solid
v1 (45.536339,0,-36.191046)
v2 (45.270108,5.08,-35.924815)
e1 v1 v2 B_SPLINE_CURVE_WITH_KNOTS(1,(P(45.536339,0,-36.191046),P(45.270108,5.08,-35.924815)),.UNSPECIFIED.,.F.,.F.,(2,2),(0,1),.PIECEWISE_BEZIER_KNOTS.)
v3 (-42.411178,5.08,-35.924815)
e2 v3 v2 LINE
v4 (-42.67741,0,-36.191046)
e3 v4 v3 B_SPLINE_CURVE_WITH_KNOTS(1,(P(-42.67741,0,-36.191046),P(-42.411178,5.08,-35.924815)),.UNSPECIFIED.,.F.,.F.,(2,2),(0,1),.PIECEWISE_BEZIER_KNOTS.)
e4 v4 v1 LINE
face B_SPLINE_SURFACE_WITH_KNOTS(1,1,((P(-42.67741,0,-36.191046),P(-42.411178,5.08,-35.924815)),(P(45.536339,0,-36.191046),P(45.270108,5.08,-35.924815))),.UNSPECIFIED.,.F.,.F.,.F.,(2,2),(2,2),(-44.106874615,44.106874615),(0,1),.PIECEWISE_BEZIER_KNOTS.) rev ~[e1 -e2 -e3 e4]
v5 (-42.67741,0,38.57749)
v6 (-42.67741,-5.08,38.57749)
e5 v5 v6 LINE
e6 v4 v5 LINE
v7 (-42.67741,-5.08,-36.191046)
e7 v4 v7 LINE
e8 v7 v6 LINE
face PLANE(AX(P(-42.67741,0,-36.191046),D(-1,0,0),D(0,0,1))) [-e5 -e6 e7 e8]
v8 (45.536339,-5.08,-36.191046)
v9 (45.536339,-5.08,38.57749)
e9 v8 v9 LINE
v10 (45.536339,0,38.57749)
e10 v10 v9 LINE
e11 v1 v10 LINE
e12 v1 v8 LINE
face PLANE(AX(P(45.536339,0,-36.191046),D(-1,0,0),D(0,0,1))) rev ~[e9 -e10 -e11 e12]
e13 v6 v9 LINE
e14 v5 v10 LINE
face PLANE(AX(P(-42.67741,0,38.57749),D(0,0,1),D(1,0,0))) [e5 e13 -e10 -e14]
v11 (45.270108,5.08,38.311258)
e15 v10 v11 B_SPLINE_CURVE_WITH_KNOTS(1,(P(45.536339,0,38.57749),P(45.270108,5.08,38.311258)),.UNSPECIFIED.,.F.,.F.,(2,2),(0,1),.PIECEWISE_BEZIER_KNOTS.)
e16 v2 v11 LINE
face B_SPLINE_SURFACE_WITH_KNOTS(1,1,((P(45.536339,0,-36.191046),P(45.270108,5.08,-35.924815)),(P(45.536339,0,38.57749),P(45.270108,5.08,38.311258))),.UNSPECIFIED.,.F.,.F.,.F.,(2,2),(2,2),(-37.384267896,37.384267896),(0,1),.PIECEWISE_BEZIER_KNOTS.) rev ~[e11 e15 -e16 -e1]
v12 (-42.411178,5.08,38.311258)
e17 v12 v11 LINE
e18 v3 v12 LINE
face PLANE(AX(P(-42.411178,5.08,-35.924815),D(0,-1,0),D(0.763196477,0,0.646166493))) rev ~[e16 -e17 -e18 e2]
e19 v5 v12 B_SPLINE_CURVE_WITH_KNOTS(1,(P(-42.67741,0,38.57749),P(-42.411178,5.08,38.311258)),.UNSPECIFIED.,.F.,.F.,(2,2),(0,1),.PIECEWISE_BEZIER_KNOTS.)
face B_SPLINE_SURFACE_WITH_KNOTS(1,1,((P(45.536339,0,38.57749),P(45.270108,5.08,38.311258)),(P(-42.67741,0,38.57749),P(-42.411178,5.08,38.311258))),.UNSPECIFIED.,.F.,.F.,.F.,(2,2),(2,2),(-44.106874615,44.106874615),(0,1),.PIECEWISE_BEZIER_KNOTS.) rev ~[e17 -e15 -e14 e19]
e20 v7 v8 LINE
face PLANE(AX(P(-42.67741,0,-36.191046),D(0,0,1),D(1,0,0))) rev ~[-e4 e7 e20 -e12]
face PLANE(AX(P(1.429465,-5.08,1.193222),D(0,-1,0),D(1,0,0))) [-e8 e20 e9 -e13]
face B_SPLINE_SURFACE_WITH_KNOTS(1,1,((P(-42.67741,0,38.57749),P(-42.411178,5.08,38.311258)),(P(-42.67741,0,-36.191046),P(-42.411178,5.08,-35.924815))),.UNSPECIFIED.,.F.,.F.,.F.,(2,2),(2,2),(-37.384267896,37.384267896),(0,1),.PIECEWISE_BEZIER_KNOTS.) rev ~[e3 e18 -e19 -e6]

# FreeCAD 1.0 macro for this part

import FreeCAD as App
import Part
import Sketcher

V = App.Vector
Q = App.Units.Quantity

doc = App.newDocument("Part")
body = doc.addObject("PartDesign::Body", "Body")

# Sketch on XZ plane
sketch1 = body.newObject("Sketcher::SketchObject", "Sketch")
sketch1.AttachmentSupport = (doc.getObject("XZ_Plane"), [""])
sketch1.MapMode = "FlatFace"
sketch1.addGeometry([
    Part.LineSegment(V(-43, 39, 0), V(-43, -36, 0)),
    Part.LineSegment(V(-43, -36, 0), V(46, -36, 0)),
    Part.LineSegment(V(46, -36, 0), V(46, 39, 0)),
    Part.LineSegment(V(46, 39, 0), V(-43, 39, 0)),
], False)
sketch1.addConstraint([
    Sketcher.Constraint("Coincident", 0, 2, 1, 1),
    Sketcher.Constraint("Coincident", 1, 2, 2, 1),
    Sketcher.Constraint("Coincident", 2, 2, 3, 1),
    Sketcher.Constraint("Coincident", 3, 2, 0, 1),
    Sketcher.Constraint("Vertical", 0),
    Sketcher.Constraint("Horizontal", 1),
    Sketcher.Constraint("Vertical", 2),
    Sketcher.Constraint("Horizontal", 3),
    Sketcher.Constraint("DistanceX", 1, 1, 1, 2, Q("88.213749 mm")),
    Sketcher.Constraint("DistanceY", 0, 2, 0, 1, Q("74.768536 mm")),
    Sketcher.Constraint("DistanceX", 0, 2, -1, 1, Q("42.67741 mm")),
    Sketcher.Constraint("DistanceY", -1, 1, 2, 2, Q("38.57749 mm")),
])
pad1 = body.newObject("PartDesign::Pad", "Pad")
pad1.Profile = sketch1
pad1.Length = Q("0.2 in")
pad2 = body.newObject("PartDesign::Pad", "Pad001")
pad2.Profile = sketch1
pad2.Length = Q("0.2 in")
pad2.Reversed = True
pad2.TaperAngle = -3

doc.recompute()
